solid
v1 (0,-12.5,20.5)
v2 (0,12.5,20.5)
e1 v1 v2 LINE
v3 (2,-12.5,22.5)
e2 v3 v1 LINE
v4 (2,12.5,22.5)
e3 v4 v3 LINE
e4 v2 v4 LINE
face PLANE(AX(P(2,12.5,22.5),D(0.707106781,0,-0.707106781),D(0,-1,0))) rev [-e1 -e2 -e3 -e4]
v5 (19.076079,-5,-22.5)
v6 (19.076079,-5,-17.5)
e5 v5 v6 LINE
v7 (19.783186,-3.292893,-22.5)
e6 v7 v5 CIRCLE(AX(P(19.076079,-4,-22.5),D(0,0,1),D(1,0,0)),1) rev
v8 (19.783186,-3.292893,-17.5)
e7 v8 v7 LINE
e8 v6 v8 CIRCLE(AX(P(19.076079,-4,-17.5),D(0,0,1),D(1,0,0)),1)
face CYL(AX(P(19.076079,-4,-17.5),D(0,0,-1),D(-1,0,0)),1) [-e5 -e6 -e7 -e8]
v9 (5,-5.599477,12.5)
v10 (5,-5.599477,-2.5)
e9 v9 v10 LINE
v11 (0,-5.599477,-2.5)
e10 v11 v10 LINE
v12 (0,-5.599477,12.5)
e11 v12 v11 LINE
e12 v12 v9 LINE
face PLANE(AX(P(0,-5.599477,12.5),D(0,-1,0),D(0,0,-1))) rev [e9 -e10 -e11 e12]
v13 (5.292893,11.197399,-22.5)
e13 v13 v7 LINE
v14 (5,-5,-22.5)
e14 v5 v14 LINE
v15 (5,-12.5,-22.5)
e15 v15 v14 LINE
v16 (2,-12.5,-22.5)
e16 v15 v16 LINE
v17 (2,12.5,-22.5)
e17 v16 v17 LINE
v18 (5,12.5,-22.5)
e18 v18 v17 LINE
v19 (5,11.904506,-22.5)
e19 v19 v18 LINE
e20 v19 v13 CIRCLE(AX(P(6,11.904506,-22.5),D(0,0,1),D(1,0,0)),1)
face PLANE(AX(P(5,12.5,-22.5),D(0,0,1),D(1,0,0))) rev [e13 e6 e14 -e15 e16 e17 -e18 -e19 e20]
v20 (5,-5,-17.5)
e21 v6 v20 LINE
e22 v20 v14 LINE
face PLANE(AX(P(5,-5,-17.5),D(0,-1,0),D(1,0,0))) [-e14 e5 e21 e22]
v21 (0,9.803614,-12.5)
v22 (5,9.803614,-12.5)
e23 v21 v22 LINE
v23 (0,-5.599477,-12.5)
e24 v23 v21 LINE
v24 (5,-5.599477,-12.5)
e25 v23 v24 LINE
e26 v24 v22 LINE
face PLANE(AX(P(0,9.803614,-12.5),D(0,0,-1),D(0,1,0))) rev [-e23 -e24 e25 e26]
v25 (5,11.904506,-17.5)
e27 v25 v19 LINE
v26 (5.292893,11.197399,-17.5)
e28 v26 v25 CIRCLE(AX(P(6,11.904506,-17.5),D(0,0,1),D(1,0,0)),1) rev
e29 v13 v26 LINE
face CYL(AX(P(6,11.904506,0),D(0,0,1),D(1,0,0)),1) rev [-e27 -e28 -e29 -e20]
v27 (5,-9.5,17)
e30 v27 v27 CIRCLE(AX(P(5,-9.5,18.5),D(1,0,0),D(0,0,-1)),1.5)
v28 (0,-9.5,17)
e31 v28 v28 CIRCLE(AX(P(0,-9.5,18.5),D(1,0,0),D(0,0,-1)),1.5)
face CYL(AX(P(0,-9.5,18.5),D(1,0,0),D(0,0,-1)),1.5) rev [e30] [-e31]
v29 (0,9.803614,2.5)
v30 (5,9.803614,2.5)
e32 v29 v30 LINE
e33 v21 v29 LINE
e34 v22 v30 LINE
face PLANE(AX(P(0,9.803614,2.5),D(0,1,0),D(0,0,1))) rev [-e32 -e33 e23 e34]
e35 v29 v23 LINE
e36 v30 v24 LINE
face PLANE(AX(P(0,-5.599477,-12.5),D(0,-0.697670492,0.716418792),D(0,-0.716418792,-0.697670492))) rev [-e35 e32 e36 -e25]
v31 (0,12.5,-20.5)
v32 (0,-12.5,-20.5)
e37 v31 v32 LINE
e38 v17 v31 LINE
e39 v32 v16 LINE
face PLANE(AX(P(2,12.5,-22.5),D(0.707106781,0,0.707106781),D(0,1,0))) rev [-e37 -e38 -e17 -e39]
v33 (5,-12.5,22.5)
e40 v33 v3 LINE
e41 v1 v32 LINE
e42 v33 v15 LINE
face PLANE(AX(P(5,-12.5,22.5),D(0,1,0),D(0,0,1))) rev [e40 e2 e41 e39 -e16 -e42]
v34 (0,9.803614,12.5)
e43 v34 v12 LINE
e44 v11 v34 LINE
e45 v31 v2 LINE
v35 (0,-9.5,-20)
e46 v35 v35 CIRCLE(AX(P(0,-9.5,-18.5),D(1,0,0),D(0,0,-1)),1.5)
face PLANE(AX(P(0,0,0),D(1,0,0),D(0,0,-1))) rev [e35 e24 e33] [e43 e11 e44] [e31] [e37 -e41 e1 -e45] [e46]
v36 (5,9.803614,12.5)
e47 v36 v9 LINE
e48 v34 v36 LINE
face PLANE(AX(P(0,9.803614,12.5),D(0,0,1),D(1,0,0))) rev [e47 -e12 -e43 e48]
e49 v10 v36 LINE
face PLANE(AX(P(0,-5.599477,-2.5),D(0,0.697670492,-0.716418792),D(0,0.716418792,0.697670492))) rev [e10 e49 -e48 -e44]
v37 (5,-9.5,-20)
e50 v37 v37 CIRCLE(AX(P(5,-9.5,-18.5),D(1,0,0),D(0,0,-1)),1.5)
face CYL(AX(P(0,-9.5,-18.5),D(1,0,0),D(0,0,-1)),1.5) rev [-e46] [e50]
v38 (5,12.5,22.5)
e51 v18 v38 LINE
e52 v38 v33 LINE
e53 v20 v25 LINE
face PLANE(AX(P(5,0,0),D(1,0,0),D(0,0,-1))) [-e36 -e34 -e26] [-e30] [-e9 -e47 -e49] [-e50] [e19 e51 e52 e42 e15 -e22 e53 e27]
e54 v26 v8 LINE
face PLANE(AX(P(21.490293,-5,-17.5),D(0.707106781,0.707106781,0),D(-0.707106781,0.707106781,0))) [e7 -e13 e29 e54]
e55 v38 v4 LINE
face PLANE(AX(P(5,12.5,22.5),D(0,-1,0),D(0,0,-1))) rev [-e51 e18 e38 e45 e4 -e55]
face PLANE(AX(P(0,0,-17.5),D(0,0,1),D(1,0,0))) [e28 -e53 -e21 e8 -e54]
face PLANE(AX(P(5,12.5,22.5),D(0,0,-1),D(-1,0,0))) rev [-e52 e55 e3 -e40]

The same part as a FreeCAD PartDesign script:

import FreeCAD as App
import Part
import Sketcher

V = App.Vector
Q = App.Units.Quantity


def edges_at(feature, points):
    """Names of the edges that pass closest to the given points."""
    edges = feature.Shape.Edges
    near = lambda p: min(range(len(edges)), key=lambda i: edges[i].distToShape(Part.Vertex(*p))[0])
    return sorted({f"Edge{near(p) + 1}" for p in points})

doc = App.newDocument("Part")
params = doc.addObject("Spreadsheet::Sheet", "Params")
for row, (alias, value) in enumerate([
    ("sketch1_width", "25 mm"),
    ("sketch1_height", "45 mm"),
    ("pad1_length", "5 mm"),
    ("sketch2_diameter", "3 mm"),
    ("sketch3_height", "15 mm"),
    ("chamfer_size", "2 mm"),
    ("pad2_length", "5 mm"),
    ("fillet_radius", "1 mm"),
], start=1):
    params.set(f"A{row}", alias)
    params.set(f"B{row}", "=" + value)
    params.setAlias(f"B{row}", alias)

body = doc.addObject("PartDesign::Body", "Body")

sketch1 = body.newObject("Sketcher::SketchObject", "Sketch")
sketch1.AttachmentSupport = (doc.getObject("YZ_Plane"), [""])
sketch1.MapMode = "FlatFace"
sketch1.addGeometry(Part.LineSegment(V(12.5, 22.5, 0), V(-12.5, 22.5, 0)), False)
sketch1.addGeometry(Part.LineSegment(V(-12.5, 22.5, 0), V(-12.5, -22.5, 0)), False)
sketch1.addGeometry(Part.LineSegment(V(-12.5, -22.5, 0), V(12.5, -22.5, 0)), False)
sketch1.addGeometry(Part.LineSegment(V(12.5, -22.5, 0), V(12.5, 22.5, 0)), False)
sketch1.addConstraint(Sketcher.Constraint("Coincident", 0, 2, 1, 1))
sketch1.addConstraint(Sketcher.Constraint("Coincident", 1, 2, 2, 1))
sketch1.addConstraint(Sketcher.Constraint("Coincident", 2, 2, 3, 1))
sketch1.addConstraint(Sketcher.Constraint("Coincident", 3, 2, 0, 1))
sketch1.addConstraint(Sketcher.Constraint("Horizontal", 0))
sketch1.addConstraint(Sketcher.Constraint("Vertical", 1))
sketch1.addConstraint(Sketcher.Constraint("Horizontal", 2))
sketch1.addConstraint(Sketcher.Constraint("Vertical", 3))
sketch1.addConstraint(Sketcher.Constraint("Symmetric", 0, 2, 2, 2, -1, 1))
sketch1.addConstraint(Sketcher.Constraint("DistanceX", 0, 2, 0, 1, Q("25 mm")))
sketch1.addConstraint(Sketcher.Constraint("DistanceY", 1, 2, 1, 1, Q("45 mm")))
sketch1.setExpression("Constraints[9]", "Params.sketch1_width")
sketch1.setExpression("Constraints[10]", "Params.sketch1_height")
pad1 = body.newObject("PartDesign::Pad", "Pad")
pad1.Profile = sketch1
pad1.setExpression("Length", "Params.pad1_length")

sketch2 = body.newObject("Sketcher::SketchObject", "Sketch001")
sketch2.AttachmentSupport = (doc.getObject("YZ_Plane"), [""])
sketch2.MapMode = "FlatFace"
sketch2.AttachmentOffset = App.Placement(V(0, 0, 5), App.Rotation())
sketch2.addGeometry(Part.Circle(V(-9.5, 18.5, 0), V(0, 0, 1), 1.5), False)
sketch2.addGeometry(Part.Circle(V(-9.5, -18.5, 0), V(0, 0, 1), 1.5), False)
sketch2.addConstraint(Sketcher.Constraint("Equal", 0, 1))
sketch2.addConstraint(Sketcher.Constraint("Symmetric", 0, 3, 1, 3, -1))
sketch2.addConstraint(Sketcher.Constraint("Diameter", 0, Q("3 mm")))
sketch2.addConstraint(Sketcher.Constraint("DistanceY", 1, 3, 0, 3, Q("37 mm")))
sketch2.addConstraint(Sketcher.Constraint("DistanceX", 0, 3, -1, 1, Q("9.5 mm")))
sketch2.setExpression("Constraints[2]", "Params.sketch2_diameter")
pocket1 = body.newObject("PartDesign::Pocket", "Pocket")
pocket1.Profile = sketch2
pocket1.Type = "ThroughAll"

sketch3 = body.newObject("Sketcher::SketchObject", "Sketch002")
sketch3.AttachmentSupport = (doc.getObject("YZ_Plane"), [""])
sketch3.MapMode = "FlatFace"
sketch3.AttachmentOffset = App.Placement(V(0, 0, 5), App.Rotation())
sketch3.addGeometry(Part.LineSegment(V(9.803614, 12.5, 0), V(-5.599477, 12.5, 0)), False)
sketch3.addGeometry(Part.LineSegment(V(-5.599477, 12.5, 0), V(-5.599477, -2.5, 0)), False)
sketch3.addGeometry(Part.LineSegment(V(-5.599477, -2.5, 0), V(9.803614, 12.5, 0)), False)
sketch3.addGeometry(Part.LineSegment(V(9.803614, -12.5, 0), V(9.803614, 2.5, 0)), False)
sketch3.addGeometry(Part.LineSegment(V(9.803614, 2.5, 0), V(-5.599477, -12.5, 0)), False)
sketch3.addGeometry(Part.LineSegment(V(-5.599477, -12.5, 0), V(9.803614, -12.5, 0)), False)
sketch3.addConstraint(Sketcher.Constraint("Coincident", 0, 2, 1, 1))
sketch3.addConstraint(Sketcher.Constraint("Coincident", 1, 2, 2, 1))
sketch3.addConstraint(Sketcher.Constraint("Coincident", 2, 2, 0, 1))
sketch3.addConstraint(Sketcher.Constraint("Coincident", 3, 2, 4, 1))
sketch3.addConstraint(Sketcher.Constraint("Coincident", 4, 2, 5, 1))
sketch3.addConstraint(Sketcher.Constraint("Coincident", 5, 2, 3, 1))
sketch3.addConstraint(Sketcher.Constraint("Horizontal", 0))
sketch3.addConstraint(Sketcher.Constraint("Vertical", 1))
sketch3.addConstraint(Sketcher.Constraint("Vertical", 3))
sketch3.addConstraint(Sketcher.Constraint("Horizontal", 5))
sketch3.addConstraint(Sketcher.Constraint("Symmetric", 0, 2, 4, 2, -1))
sketch3.addConstraint(Sketcher.Constraint("Parallel", 2, 4))
sketch3.addConstraint(Sketcher.Constraint("Vertical", 2, 2, 3, 2))
sketch3.addConstraint(Sketcher.Constraint("DistanceY", 1, 2, 1, 1, Q("15 mm")))
sketch3.addConstraint(Sketcher.Constraint("DistanceY", 3, 2, 2, 2, Q("10 mm")))
sketch3.addConstraint(Sketcher.Constraint("DistanceX", 0, 2, 0, 1, Q("15.403091 mm")))
sketch3.addConstraint(Sketcher.Constraint("DistanceX", 0, 2, -1, 1, Q("5.599477 mm")))
sketch3.setExpression("Constraints[13]", "Params.sketch3_height")
pocket2 = body.newObject("PartDesign::Pocket", "Pocket001")
pocket2.Profile = sketch3
pocket2.Type = "ThroughAll"
doc.recompute()

chamfer = body.newObject("PartDesign::Chamfer", "Chamfer")
chamfer.Base = (pocket2, edges_at(pocket2, [(0, 0, 22.5), (0, 0, -22.5)]))
chamfer.setExpression("Size", "Params.chamfer_size")

sketch4 = body.newObject("Sketcher::SketchObject", "Sketch003")
sketch4.AttachmentSupport = (doc.getObject("XY_Plane"), [""])
sketch4.MapMode = "FlatFace"
sketch4.AttachmentOffset = App.Placement(V(0, 0, -22.5), App.Rotation())
sketch4.addGeometry(Part.LineSegment(V(21.490293, -5, 0), V(5, -5, 0)), False)
sketch4.addGeometry(Part.LineSegment(V(5, -5, 0), V(5, 11.490293, 0)), False)
sketch4.addGeometry(Part.LineSegment(V(5, 11.490293, 0), V(21.490293, -5, 0)), False)
sketch4.addConstraint(Sketcher.Constraint("Coincident", 0, 2, 1, 1))
sketch4.addConstraint(Sketcher.Constraint("Coincident", 1, 2, 2, 1))
sketch4.addConstraint(Sketcher.Constraint("Coincident", 2, 2, 0, 1))
sketch4.addConstraint(Sketcher.Constraint("Horizontal", 0))
sketch4.addConstraint(Sketcher.Constraint("Vertical", 1))
sketch4.addConstraint(Sketcher.Constraint("Equal", 0, 1))
sketch4.addConstraint(Sketcher.Constraint("DistanceX", -1, 1, 0, 2, Q("5 mm")))
sketch4.addConstraint(Sketcher.Constraint("DistanceY", 0, 2, -1, 1, Q("5 mm")))
sketch4.addConstraint(Sketcher.Constraint("DistanceX", 0, 2, 0, 1, Q("16.490293 mm")))
pad2 = body.newObject("PartDesign::Pad", "Pad001")
pad2.Profile = sketch4
pad2.setExpression("Length", "Params.pad2_length")
doc.recompute()

fillet = body.newObject("PartDesign::Fillet", "Fillet")
fillet.Base = (pad2, edges_at(pad2, [(5, 11.49, -20), (21.49, -5, -20)]))
fillet.setExpression("Radius", "Params.fillet_radius")

doc.recompute()
